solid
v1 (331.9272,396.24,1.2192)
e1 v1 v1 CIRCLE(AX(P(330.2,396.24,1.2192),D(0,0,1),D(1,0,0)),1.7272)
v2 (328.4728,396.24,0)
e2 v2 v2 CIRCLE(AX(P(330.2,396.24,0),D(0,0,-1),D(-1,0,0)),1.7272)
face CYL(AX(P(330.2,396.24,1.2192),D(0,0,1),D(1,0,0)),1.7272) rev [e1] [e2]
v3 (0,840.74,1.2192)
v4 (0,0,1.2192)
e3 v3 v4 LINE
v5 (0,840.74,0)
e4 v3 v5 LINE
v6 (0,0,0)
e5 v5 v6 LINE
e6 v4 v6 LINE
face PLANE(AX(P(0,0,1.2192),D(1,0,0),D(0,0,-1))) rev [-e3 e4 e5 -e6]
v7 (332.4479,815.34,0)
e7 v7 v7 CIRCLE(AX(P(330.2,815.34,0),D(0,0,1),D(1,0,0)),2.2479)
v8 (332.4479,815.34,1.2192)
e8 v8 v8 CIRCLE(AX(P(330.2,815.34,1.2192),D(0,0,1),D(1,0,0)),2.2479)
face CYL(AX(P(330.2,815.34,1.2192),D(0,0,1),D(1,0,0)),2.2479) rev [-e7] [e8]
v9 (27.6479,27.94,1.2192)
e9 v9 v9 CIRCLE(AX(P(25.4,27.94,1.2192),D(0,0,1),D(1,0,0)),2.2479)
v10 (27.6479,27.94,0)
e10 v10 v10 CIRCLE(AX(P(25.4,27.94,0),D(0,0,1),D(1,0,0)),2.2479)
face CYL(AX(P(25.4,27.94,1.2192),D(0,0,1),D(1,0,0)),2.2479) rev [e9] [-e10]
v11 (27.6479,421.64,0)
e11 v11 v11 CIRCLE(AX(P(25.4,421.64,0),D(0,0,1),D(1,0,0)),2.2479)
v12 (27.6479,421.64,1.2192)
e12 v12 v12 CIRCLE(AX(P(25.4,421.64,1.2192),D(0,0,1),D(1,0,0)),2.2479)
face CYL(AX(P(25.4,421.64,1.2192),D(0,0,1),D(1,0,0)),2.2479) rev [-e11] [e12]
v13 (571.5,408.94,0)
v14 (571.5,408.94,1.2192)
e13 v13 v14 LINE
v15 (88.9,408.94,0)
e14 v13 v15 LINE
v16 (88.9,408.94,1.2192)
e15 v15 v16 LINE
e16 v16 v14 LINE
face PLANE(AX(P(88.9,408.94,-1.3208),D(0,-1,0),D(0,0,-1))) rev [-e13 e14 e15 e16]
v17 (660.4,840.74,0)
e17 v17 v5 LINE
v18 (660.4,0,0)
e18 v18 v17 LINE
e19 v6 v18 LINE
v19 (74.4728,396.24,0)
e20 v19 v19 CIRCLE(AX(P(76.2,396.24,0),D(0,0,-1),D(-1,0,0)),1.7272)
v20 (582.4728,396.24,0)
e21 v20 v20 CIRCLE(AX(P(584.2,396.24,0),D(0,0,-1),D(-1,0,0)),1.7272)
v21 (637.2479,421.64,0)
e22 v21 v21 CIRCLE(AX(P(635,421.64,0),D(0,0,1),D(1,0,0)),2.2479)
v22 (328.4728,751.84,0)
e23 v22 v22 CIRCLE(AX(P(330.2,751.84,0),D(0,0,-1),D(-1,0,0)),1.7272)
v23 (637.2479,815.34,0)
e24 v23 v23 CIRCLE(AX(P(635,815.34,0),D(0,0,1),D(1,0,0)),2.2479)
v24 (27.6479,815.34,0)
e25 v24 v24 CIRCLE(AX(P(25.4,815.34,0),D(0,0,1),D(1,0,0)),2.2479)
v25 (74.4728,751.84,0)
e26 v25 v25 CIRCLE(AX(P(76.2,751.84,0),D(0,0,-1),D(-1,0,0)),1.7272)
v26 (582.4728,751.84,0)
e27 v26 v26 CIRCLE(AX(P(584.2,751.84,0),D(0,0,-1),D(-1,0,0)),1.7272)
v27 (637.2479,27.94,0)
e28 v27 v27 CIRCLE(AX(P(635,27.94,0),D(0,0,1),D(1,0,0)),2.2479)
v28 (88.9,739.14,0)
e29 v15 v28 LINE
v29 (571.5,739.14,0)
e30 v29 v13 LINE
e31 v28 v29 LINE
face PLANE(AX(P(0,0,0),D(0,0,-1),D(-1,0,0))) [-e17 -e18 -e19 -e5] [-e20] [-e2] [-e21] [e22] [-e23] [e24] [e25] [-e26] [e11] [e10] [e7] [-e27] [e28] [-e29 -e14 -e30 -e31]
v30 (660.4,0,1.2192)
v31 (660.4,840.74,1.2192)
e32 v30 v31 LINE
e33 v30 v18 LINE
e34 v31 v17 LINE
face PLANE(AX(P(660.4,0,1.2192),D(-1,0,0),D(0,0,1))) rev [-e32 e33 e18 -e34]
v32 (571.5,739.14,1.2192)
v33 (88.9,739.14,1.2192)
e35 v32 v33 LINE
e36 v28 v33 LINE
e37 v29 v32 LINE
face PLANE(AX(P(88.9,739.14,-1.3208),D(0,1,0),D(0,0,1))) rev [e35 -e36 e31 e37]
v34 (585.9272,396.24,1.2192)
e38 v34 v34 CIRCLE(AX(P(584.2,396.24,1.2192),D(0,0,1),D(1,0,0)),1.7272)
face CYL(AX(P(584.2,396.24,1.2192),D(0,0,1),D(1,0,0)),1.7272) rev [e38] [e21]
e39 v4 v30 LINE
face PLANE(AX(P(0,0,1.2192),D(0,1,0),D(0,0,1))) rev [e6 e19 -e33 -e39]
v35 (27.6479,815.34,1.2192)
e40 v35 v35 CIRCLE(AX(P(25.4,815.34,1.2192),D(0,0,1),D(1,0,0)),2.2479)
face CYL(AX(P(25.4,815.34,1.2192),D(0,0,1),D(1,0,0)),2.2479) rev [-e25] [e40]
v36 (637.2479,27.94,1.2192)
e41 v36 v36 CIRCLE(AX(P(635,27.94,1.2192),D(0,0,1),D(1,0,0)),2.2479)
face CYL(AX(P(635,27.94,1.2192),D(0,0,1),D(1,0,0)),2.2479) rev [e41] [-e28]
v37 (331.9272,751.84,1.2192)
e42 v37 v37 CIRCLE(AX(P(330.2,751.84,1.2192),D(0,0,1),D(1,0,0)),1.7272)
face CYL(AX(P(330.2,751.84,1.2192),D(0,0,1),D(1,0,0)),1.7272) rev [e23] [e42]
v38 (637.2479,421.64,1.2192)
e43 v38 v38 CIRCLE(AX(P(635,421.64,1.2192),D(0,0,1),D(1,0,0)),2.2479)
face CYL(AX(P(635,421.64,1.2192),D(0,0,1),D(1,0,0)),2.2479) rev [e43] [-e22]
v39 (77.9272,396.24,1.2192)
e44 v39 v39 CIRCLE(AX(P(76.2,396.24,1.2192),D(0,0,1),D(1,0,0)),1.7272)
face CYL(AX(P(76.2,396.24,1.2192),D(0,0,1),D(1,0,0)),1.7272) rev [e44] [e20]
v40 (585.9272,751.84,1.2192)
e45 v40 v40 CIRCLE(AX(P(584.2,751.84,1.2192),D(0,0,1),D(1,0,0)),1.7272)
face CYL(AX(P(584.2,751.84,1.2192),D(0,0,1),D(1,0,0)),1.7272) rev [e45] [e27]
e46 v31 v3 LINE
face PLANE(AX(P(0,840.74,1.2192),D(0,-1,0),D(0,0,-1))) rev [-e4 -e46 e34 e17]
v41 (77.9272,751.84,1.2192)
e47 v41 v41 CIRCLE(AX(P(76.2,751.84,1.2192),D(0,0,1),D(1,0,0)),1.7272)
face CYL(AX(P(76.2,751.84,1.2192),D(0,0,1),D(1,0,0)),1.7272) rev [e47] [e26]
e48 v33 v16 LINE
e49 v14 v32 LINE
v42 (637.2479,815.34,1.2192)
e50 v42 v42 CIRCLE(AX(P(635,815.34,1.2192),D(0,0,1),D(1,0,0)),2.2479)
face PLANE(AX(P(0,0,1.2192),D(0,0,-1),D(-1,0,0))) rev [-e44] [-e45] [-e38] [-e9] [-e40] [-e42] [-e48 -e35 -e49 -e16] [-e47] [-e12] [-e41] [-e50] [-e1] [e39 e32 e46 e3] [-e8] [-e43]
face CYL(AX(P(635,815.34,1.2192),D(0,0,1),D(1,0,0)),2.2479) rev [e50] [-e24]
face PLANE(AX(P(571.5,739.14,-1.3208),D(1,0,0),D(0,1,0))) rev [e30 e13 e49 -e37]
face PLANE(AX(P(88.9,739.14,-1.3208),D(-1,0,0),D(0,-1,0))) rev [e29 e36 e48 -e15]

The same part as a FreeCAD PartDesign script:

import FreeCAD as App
import Part
import Sketcher
from FreeCAD import Vector
Q = App.Units.Quantity


def add_polygon(sketch, points):
    """Adds a closed chain of lines whose ends are joined by coincident constraints."""
    first, n = sketch.GeometryCount, len(points)
    for a, b in zip(points, points[1:] + points[:1]):
        sketch.addGeometry(Part.LineSegment(App.Vector(*a, 0), App.Vector(*b, 0)), False)
    for i in range(n):
        sketch.addConstraint(Sketcher.Constraint("Coincident", first + i, 2, first + (i + 1) % n, 1))

doc = App.newDocument("Part")
body = doc.addObject("PartDesign::Body", "Body")

sketch1 = body.newObject("Sketcher::SketchObject", "Sketch")
sketch1.AttachmentSupport = (doc.getObject("XY_Plane"), [""])
sketch1.MapMode = "FlatFace"
add_polygon(sketch1, [(0, 841), (0, 0), (660, 0), (660, 841)])
sketch1.addConstraint([
    Sketcher.Constraint("Vertical", 0),
    Sketcher.Constraint("Horizontal", 1),
    Sketcher.Constraint("Vertical", 2),
    Sketcher.Constraint("Horizontal", 3),
    Sketcher.Constraint("Coincident", 0, 2, -1, 1),
    Sketcher.Constraint("DistanceX", 1, 1, 1, 2, Q("26 in")),
    Sketcher.Constraint("DistanceY", 0, 2, 0, 1, Q("33.1 in")),
])
pad1 = body.newObject("PartDesign::Pad", "Pad")
pad1.Profile = sketch1
pad1.Length = Q("0.048 in")

sketch2 = body.newObject("Sketcher::SketchObject", "Sketch001")
sketch2.AttachmentSupport = (doc.getObject("XY_Plane"), [""])
sketch2.MapMode = "FlatFace"
sketch2.AttachmentOffset = App.Placement(Vector(0, 0, 0.048 * 25.4), App.Rotation())
sketch2.addGeometry([
    Part.Circle(Vector(25.4, 815.3, 0), Vector(0, 0, 1), 2.2),
    Part.Circle(Vector(330.2, 815.3, 0), Vector(0, 0, 1), 2.2),
    Part.Circle(Vector(635, 815.3, 0), Vector(0, 0, 1), 2.2),
    Part.Circle(Vector(25.4, 421.6, 0), Vector(0, 0, 1), 2.2),
    Part.Circle(Vector(25.4, 27.9, 0), Vector(0, 0, 1), 2.2),
    Part.Circle(Vector(635, 27.9, 0), Vector(0, 0, 1), 2.2),
    Part.Circle(Vector(635, 421.6, 0), Vector(0, 0, 1), 2.2),
], False)
sketch2.addConstraint([
    Sketcher.Constraint("Equal", 0, 1),
    Sketcher.Constraint("Equal", 1, 2),
    Sketcher.Constraint("Equal", 2, 3),
    Sketcher.Constraint("Equal", 3, 4),
    Sketcher.Constraint("Equal", 4, 5),
    Sketcher.Constraint("Equal", 5, 6),
    Sketcher.Constraint("Horizontal", 0, 3, 1, 3),
    Sketcher.Constraint("Horizontal", 1, 3, 2, 3),
    Sketcher.Constraint("Horizontal", 4, 3, 5, 3),
    Sketcher.Constraint("Horizontal", 3, 3, 6, 3),
    Sketcher.Constraint("Vertical", 0, 3, 3, 3),
    Sketcher.Constraint("Vertical", 3, 3, 4, 3),
    Sketcher.Constraint("Vertical", 2, 3, 5, 3),
    Sketcher.Constraint("Vertical", 5, 3, 6, 3),
    Sketcher.Constraint("Diameter", 0, Q("0.177 in")),
    Sketcher.Constraint("DistanceX", -1, 1, 0, 3, Q("1 in")),
    Sketcher.Constraint("DistanceX", -1, 1, 1, 3, Q("13 in")),
    Sketcher.Constraint("DistanceX", -1, 1, 2, 3, Q("25 in")),
    Sketcher.Constraint("DistanceY", 4, 3, 0, 3, Q("31 in")),
    Sketcher.Constraint("DistanceY", -1, 1, 0, 3, Q("32.1 in")),
    Sketcher.Constraint("DistanceY", -1, 1, 3, 3, Q("16.6 in")),
])
doc.recompute()
hole = body.newObject("PartDesign::Hole", "Hole")
hole.Profile = sketch2
hole.ThreadType = "None"
hole.Diameter = Q("0.177 in")
hole.DepthType = "ThroughAll"

sketch3 = body.newObject("Sketcher::SketchObject", "Sketch002")
sketch3.AttachmentSupport = (doc.getObject("XY_Plane"), [""])
sketch3.MapMode = "FlatFace"
sketch3.AttachmentOffset = App.Placement(Vector(0, 0, 0.048 * 25.4), App.Rotation())
add_polygon(sketch3, [(89, 739), (89, 409), (572, 409), (572, 739)])
sketch3.addConstraint([
    Sketcher.Constraint("Vertical", 0),
    Sketcher.Constraint("Horizontal", 1),
    Sketcher.Constraint("Vertical", 2),
    Sketcher.Constraint("Horizontal", 3),
    Sketcher.Constraint("DistanceX", 1, 1, 1, 2, Q("19 in")),
    Sketcher.Constraint("DistanceY", 0, 2, 0, 1, Q("13 in")),
    Sketcher.Constraint("DistanceX", -1, 1, 0, 2, Q("3.5 in")),
    Sketcher.Constraint("DistanceY", -1, 1, 0, 2, Q("16.1 in")),
])
pocket1 = body.newObject("PartDesign::Pocket", "Pocket")
pocket1.Profile = sketch3
pocket1.Length = Q("0.1 in")

sketch4 = body.newObject("Sketcher::SketchObject", "Sketch003")
sketch4.AttachmentSupport = (doc.getObject("XY_Plane"), [""])
sketch4.MapMode = "FlatFace"
sketch4.AttachmentOffset = App.Placement(Vector(0, 0, 0.048 * 25.4), App.Rotation())
sketch4.addGeometry([
    Part.Circle(Vector(76.2, 751.8, 0), Vector(0, 0, 1), 1.7),
    Part.Circle(Vector(330.2, 751.8, 0), Vector(0, 0, 1), 1.7),
    Part.Circle(Vector(584.2, 751.8, 0), Vector(0, 0, 1), 1.7),
    Part.Circle(Vector(584.2, 396.2, 0), Vector(0, 0, 1), 1.7),
    Part.Circle(Vector(330.2, 396.2, 0), Vector(0, 0, 1), 1.7),
    Part.Circle(Vector(76.2, 396.2, 0), Vector(0, 0, 1), 1.7),
], False)
sketch4.addConstraint([
    Sketcher.Constraint("Equal", 0, 1),
    Sketcher.Constraint("Equal", 1, 2),
    Sketcher.Constraint("Equal", 2, 3),
    Sketcher.Constraint("Equal", 3, 4),
    Sketcher.Constraint("Equal", 4, 5),
    Sketcher.Constraint("Horizontal", 0, 3, 1, 3),
    Sketcher.Constraint("Horizontal", 1, 3, 2, 3),
    Sketcher.Constraint("Horizontal", 3, 3, 4, 3),
    Sketcher.Constraint("Horizontal", 4, 3, 5, 3),
    Sketcher.Constraint("Vertical", 2, 3, 3, 3),
    Sketcher.Constraint("Vertical", 1, 3, 4, 3),
    Sketcher.Constraint("Vertical", 0, 3, 5, 3),
    Sketcher.Constraint("Diameter", 0, Q("0.136 in")),
    Sketcher.Constraint("DistanceX", -1, 1, 0, 3, Q("3 in")),
    Sketcher.Constraint("DistanceX", -1, 1, 1, 3, Q("13 in")),
    Sketcher.Constraint("DistanceX", -1, 1, 2, 3, Q("23 in")),
    Sketcher.Constraint("DistanceY", 3, 3, 2, 3, Q("14 in")),
    Sketcher.Constraint("DistanceY", -1, 1, 0, 3, Q("29.6 in")),
])
doc.recompute()
hole2 = body.newObject("PartDesign::Hole", "Hole001")
hole2.Profile = sketch4
hole2.ThreadType = "None"
hole2.Diameter = Q("0.136 in")
hole2.DepthType = "Dimension"
hole2.Depth = Q("1 in")
hole2.DrillPoint = "Angled"
hole2.DrillPointAngle = 118

doc.recompute()
